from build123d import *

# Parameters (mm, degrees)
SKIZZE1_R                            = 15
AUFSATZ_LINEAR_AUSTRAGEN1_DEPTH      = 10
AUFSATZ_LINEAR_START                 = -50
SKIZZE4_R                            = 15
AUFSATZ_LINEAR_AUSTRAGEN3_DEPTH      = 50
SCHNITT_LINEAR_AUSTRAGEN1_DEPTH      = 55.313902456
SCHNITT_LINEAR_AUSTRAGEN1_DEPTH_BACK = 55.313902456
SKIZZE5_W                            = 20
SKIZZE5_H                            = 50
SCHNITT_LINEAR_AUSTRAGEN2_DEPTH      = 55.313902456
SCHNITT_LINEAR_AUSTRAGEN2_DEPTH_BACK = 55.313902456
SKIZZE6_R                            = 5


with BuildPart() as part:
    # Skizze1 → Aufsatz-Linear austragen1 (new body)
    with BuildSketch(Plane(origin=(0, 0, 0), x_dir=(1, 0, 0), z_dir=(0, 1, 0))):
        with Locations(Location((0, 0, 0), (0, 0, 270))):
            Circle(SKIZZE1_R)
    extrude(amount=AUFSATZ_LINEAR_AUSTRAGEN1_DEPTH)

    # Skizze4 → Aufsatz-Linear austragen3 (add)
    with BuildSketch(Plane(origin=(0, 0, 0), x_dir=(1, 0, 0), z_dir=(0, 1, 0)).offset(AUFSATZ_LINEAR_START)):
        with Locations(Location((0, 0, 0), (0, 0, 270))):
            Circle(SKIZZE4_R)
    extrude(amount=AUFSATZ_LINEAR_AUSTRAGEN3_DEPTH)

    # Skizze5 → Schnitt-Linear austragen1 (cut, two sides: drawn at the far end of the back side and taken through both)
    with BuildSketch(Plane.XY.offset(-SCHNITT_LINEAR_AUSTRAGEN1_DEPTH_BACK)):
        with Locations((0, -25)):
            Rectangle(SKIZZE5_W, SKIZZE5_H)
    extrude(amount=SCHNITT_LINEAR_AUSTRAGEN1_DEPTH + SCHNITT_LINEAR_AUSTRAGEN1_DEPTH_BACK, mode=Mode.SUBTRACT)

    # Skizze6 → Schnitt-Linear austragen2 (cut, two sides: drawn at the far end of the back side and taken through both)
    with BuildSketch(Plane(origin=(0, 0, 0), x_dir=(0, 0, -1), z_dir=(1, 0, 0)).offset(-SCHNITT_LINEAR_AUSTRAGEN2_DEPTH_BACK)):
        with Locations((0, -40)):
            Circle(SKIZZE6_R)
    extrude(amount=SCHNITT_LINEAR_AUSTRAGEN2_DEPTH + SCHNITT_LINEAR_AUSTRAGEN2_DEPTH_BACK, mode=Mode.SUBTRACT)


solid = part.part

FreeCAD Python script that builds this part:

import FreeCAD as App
import Part
import Sketcher

doc = App.newDocument("Part")
body = doc.addObject("PartDesign::Body", "Body")

# Sketch on XZ plane
sketch1 = body.newObject("Sketcher::SketchObject", "Sketch")
sketch1.AttachmentSupport = (doc.getObject("XZ_Plane"), [""])
sketch1.MapMode = "FlatFace"
sketch1.addGeometry(Part.Circle(App.Vector(0, 0, 0), App.Vector(0, 0, 1), 15), False)
sketch1.addConstraint([
    Sketcher.Constraint("Coincident", 0, 3, -1, 1),
    Sketcher.Constraint("Diameter", 0, 30.0),
])
pad1 = body.newObject("PartDesign::Pad", "Pad")
pad1.Profile = sketch1
pad1.Length = 10
pad1.Reversed = True

# Sketch on XZ plane
sketch2 = body.newObject("Sketcher::SketchObject", "Sketch001")
sketch2.AttachmentSupport = (doc.getObject("XZ_Plane"), [""])
sketch2.MapMode = "FlatFace"
sketch2.AttachmentOffset = App.Placement(App.Vector(0, 0, 50), App.Rotation())
sketch2.addGeometry(Part.Circle(App.Vector(0, 0, 0), App.Vector(0, 0, 1), 15), False)
sketch2.addConstraint([
    Sketcher.Constraint("Coincident", 0, 3, -1, 1),
    Sketcher.Constraint("Diameter", 0, 30.0),
])
pad2 = body.newObject("PartDesign::Pad", "Pad001")
pad2.Profile = sketch2
pad2.Length = 50
pad2.Reversed = True

# Sketch on XY plane
sketch3 = body.newObject("Sketcher::SketchObject", "Sketch002")
sketch3.AttachmentSupport = (doc.getObject("XY_Plane"), [""])
sketch3.MapMode = "FlatFace"
sketch3.addGeometry([
    Part.LineSegment(App.Vector(-10, 0, 0), App.Vector(-10, -50, 0)),
    Part.LineSegment(App.Vector(-10, -50, 0), App.Vector(10, -50, 0)),
    Part.LineSegment(App.Vector(10, -50, 0), App.Vector(10, 0, 0)),
    Part.LineSegment(App.Vector(10, 0, 0), App.Vector(-10, 0, 0)),
], False)
sketch3.addConstraint([
    Sketcher.Constraint("Coincident", 0, 2, 1, 1),
    Sketcher.Constraint("Coincident", 1, 2, 2, 1),
    Sketcher.Constraint("Coincident", 2, 2, 3, 1),
    Sketcher.Constraint("Coincident", 3, 2, 0, 1),
    Sketcher.Constraint("Vertical", 0),
    Sketcher.Constraint("Horizontal", 1),
    Sketcher.Constraint("Vertical", 2),
    Sketcher.Constraint("Horizontal", 3),
    Sketcher.Constraint("Symmetric", 2, 2, 3, 2, -1, 1),
    Sketcher.Constraint("DistanceX", 1, 1, 1, 2, 20.0),
    Sketcher.Constraint("DistanceY", 0, 2, 0, 1, 50.0),
])
pocket1 = body.newObject("PartDesign::Pocket", "Pocket")
pocket1.Profile = sketch3
pocket1.Type = "ThroughAll"
pocket1.Midplane = True

# Sketch on YZ plane
sketch4 = body.newObject("Sketcher::SketchObject", "Sketch003")
sketch4.AttachmentSupport = (doc.getObject("YZ_Plane"), [""])
sketch4.MapMode = "FlatFace"
sketch4.addGeometry(Part.Circle(App.Vector(-40, 0, 0), App.Vector(0, 0, 1), 5), False)
sketch4.addConstraint([
    Sketcher.Constraint("PointOnObject", 0, 3, -1),
    Sketcher.Constraint("Diameter", 0, 10.0),
    Sketcher.Constraint("DistanceX", 0, 3, -1, 1, 40.0),
])
pocket2 = body.newObject("PartDesign::Pocket", "Pocket001")
pocket2.Profile = sketch4
pocket2.Type = "ThroughAll"
pocket2.Midplane = True

doc.recompute()
